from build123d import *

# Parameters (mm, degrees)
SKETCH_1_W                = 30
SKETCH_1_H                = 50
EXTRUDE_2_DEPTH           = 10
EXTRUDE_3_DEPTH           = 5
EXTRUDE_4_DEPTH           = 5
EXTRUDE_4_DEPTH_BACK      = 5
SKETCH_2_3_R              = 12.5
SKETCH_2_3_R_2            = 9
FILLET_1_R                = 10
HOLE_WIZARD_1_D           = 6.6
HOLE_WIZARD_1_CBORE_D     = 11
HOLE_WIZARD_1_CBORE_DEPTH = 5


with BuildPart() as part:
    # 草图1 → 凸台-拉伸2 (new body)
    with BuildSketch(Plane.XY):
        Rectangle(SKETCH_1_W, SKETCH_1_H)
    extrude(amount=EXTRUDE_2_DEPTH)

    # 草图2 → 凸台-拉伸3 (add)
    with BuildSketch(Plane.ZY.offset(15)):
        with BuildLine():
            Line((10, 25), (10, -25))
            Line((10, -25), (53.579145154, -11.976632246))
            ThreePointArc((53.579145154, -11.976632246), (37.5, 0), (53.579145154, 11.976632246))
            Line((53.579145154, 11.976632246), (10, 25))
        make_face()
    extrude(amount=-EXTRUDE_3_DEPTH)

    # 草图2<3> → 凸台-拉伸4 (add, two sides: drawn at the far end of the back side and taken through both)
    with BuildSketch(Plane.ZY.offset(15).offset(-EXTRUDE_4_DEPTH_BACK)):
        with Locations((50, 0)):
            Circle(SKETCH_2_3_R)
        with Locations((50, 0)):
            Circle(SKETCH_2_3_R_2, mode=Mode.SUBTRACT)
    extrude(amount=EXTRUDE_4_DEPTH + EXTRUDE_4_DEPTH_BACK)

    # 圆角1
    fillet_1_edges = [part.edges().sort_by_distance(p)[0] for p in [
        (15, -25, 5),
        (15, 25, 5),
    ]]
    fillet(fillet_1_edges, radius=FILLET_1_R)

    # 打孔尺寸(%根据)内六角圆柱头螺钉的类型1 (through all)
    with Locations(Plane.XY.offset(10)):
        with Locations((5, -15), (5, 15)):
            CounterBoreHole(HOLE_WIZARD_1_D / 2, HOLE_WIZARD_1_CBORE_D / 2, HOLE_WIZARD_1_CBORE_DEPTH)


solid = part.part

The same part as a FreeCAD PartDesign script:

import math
import FreeCAD as App
import Part
import Sketcher
Q = App.Units.Quantity


def edges_at(feature, points):
    """Names of the edges that pass closest to the given points."""
    edges = feature.Shape.Edges
    near = lambda p: min(range(len(edges)), key=lambda i: edges[i].distToShape(Part.Vertex(*p))[0])
    return sorted({f"Edge{near(p) + 1}" for p in points})


def add_polygon(sketch, points):
    """Adds a closed chain of lines whose ends are joined by coincident constraints."""
    first, n = sketch.GeometryCount, len(points)
    for a, b in zip(points, points[1:] + points[:1]):
        sketch.addGeometry(Part.LineSegment(App.Vector(*a, 0), App.Vector(*b, 0)), False)
    for i in range(n):
        sketch.addConstraint(Sketcher.Constraint("Coincident", first + i, 2, first + (i + 1) % n, 1))

doc = App.newDocument("Part")
body = doc.addObject("PartDesign::Body", "Body")

# Sketch on XY plane
sketch1 = body.newObject("Sketcher::SketchObject", "Sketch")
sketch1.AttachmentSupport = (doc.getObject("XY_Plane"), [""])
sketch1.MapMode = "FlatFace"
add_polygon(sketch1, [(-15, 25), (-15, -25), (15, -25), (15, 25)])  # lines 0-3
sketch1.addConstraint(Sketcher.Constraint("Vertical", 0))
sketch1.addConstraint(Sketcher.Constraint("Horizontal", 1))
sketch1.addConstraint(Sketcher.Constraint("Vertical", 2))
sketch1.addConstraint(Sketcher.Constraint("Horizontal", 3))
sketch1.addConstraint(Sketcher.Constraint("Symmetric", 0, 2, 2, 2, -1, 1))
sketch1.addConstraint(Sketcher.Constraint("DistanceX", 1, 1, 1, 2, Q("30 mm")))
sketch1.addConstraint(Sketcher.Constraint("DistanceY", 0, 2, 0, 1, Q("50 mm")))
pad1 = body.newObject("PartDesign::Pad", "Pad")
pad1.Profile = sketch1
pad1.Length = 10

# Sketch on YZ plane
sketch2 = body.newObject("Sketcher::SketchObject", "Sketch001")
sketch2.AttachmentSupport = (doc.getObject("YZ_Plane"), [""])
sketch2.MapMode = "FlatFace"
sketch2.AttachmentOffset = App.Placement(App.Vector(0, 0, -15), App.Rotation())
sketch2.addGeometry(Part.LineSegment(App.Vector(25, 10, 0), App.Vector(-25, 10, 0)), False)
sketch2.addGeometry(Part.LineSegment(App.Vector(-25, 10, 0), App.Vector(-11.976632, 53.579145, 0)), False)
sketch2.addGeometry(Part.ArcOfCircle(Part.Circle(App.Vector(0, 50, 0), App.Vector(0, 0, 1), 12.5), math.radians(163.361538), math.radians(376.638462)), False)
sketch2.addGeometry(Part.LineSegment(App.Vector(11.976632, 53.579145, 0), App.Vector(25, 10, 0)), False)
sketch2.addConstraint(Sketcher.Constraint("Coincident", 0, 2, 1, 1))
sketch2.addConstraint(Sketcher.Constraint("Tangent", 1, 2, 2, 1))
sketch2.addConstraint(Sketcher.Constraint("Tangent", 2, 2, 3, 1))
sketch2.addConstraint(Sketcher.Constraint("Coincident", 3, 2, 0, 1))
sketch2.addConstraint(Sketcher.Constraint("Horizontal", 0))
sketch2.addConstraint(Sketcher.Constraint("Symmetric", 1, 2, 2, 2, -2))
sketch2.addConstraint(Sketcher.Constraint("Radius", 2, Q("12.5 mm")))
sketch2.addConstraint(Sketcher.Constraint("DistanceX", 0, 2, 0, 1, Q("50 mm")))
sketch2.addConstraint(Sketcher.Constraint("DistanceY", -1, 1, 2, 3, Q("50 mm")))
sketch2.addConstraint(Sketcher.Constraint("DistanceY", -1, 1, 0, 2, Q("10 mm")))
pad2 = body.newObject("PartDesign::Pad", "Pad001")
pad2.Profile = sketch2
pad2.Length = 5

# Sketch on YZ plane
sketch3 = body.newObject("Sketcher::SketchObject", "Sketch002")
sketch3.AttachmentSupport = (doc.getObject("YZ_Plane"), [""])
sketch3.MapMode = "FlatFace"
sketch3.AttachmentOffset = App.Placement(App.Vector(0, 0, -15), App.Rotation())
sketch3.addGeometry(Part.Circle(App.Vector(0, 50, 0), App.Vector(0, 0, 1), 12.5), False)
sketch3.addGeometry(Part.Circle(App.Vector(0, 50, 0), App.Vector(0, 0, 1), 9), False)
sketch3.addConstraint(Sketcher.Constraint("Coincident", 1, 3, 0, 3))
sketch3.addConstraint(Sketcher.Constraint("PointOnObject", 0, 3, -2))
sketch3.addConstraint(Sketcher.Constraint("Diameter", 0, Q("25 mm")))
sketch3.addConstraint(Sketcher.Constraint("Diameter", 1, Q("18 mm")))
sketch3.addConstraint(Sketcher.Constraint("DistanceY", -1, 1, 0, 3, Q("50 mm")))
pad3 = body.newObject("PartDesign::Pad", "Pad002")
pad3.Profile = sketch3
pad3.Type = "TwoLengths"
pad3.Length = 5
pad3.Length2 = 5
pad3.Reversed = True
doc.recompute()

fillet = body.newObject("PartDesign::Fillet", "Fillet")
fillet.Base = (pad3, edges_at(pad3, [(15, -25, 5), (15, 25, 5)]))
fillet.Radius = 10

# Sketch on XY plane
sketch4 = body.newObject("Sketcher::SketchObject", "Sketch003")
sketch4.AttachmentSupport = (doc.getObject("XY_Plane"), [""])
sketch4.MapMode = "FlatFace"
sketch4.AttachmentOffset = App.Placement(App.Vector(0, 0, 10), App.Rotation())
sketch4.addGeometry(Part.Circle(App.Vector(5, -15, 0), App.Vector(0, 0, 1), 3.3), False)
sketch4.addGeometry(Part.Circle(App.Vector(5, 15, 0), App.Vector(0, 0, 1), 3.3), False)
sketch4.addConstraint(Sketcher.Constraint("Equal", 0, 1))
sketch4.addConstraint(Sketcher.Constraint("Symmetric", 0, 3, 1, 3, -1))
sketch4.addConstraint(Sketcher.Constraint("Diameter", 0, Q("6.6 mm")))
sketch4.addConstraint(Sketcher.Constraint("DistanceX", -1, 1, 0, 3, Q("5 mm")))
sketch4.addConstraint(Sketcher.Constraint("DistanceY", 0, 3, -1, 1, Q("15 mm")))
doc.recompute()
hole = body.newObject("PartDesign::Hole", "Hole")
hole.Profile = sketch4
hole.ThreadType = "None"
hole.Diameter = 6.6
hole.DepthType = "ThroughAll"
hole.HoleCutType = "Counterbore"
hole.HoleCutDiameter = 11
hole.HoleCutDepth = 5

doc.recompute()
